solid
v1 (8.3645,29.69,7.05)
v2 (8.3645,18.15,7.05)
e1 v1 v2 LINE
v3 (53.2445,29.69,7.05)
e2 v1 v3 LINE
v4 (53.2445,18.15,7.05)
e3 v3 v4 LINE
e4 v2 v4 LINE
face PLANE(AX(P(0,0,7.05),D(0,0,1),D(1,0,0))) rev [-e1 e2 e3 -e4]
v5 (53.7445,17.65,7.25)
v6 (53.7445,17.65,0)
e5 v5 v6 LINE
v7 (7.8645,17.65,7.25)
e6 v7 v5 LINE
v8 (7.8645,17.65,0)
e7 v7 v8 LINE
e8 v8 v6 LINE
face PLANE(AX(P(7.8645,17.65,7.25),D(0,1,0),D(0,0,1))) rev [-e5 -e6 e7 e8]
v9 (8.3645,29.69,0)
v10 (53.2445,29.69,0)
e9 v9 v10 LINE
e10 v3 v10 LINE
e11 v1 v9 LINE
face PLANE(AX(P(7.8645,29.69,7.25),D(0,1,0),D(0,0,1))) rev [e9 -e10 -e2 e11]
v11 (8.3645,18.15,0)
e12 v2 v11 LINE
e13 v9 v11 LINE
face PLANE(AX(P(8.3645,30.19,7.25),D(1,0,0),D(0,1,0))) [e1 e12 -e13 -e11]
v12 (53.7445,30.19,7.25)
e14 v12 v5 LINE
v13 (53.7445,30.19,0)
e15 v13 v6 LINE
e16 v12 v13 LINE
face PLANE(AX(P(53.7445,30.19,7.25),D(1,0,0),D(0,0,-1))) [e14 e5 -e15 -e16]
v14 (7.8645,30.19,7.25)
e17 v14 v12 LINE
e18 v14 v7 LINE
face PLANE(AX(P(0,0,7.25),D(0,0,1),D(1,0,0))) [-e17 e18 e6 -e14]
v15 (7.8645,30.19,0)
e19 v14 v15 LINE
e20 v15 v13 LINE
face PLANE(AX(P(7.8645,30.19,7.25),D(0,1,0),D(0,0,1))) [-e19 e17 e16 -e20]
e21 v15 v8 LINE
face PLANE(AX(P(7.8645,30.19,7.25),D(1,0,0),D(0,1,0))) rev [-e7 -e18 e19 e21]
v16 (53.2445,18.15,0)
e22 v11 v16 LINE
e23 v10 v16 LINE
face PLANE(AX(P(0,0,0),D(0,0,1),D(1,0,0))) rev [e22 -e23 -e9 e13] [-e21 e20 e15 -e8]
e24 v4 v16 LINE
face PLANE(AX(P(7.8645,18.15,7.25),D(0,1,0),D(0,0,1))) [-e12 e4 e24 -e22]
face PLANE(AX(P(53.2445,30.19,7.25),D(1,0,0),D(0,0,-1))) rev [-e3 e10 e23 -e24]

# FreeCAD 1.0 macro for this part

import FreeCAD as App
import Part
import Sketcher
Q = App.Units.Quantity


def faces_at(feature, points):
    """Names of the faces that lie closest to the given points."""
    faces = feature.Shape.Faces
    near = lambda p: min(range(len(faces)), key=lambda i: faces[i].distToShape(Part.Vertex(*p))[0])
    return sorted({f"Face{near(p) + 1}" for p in points})

doc = App.newDocument("Part")
body = doc.addObject("PartDesign::Body", "Body")

# Sketch on XY plane
sketch1 = body.newObject("Sketcher::SketchObject", "Sketch")
sketch1.AttachmentSupport = (doc.getObject("XY_Plane"), [""])
sketch1.MapMode = "FlatFace"
sketch1.addGeometry([
    Part.LineSegment(App.Vector(8, 30, 0), App.Vector(8, 18, 0)),
    Part.LineSegment(App.Vector(8, 18, 0), App.Vector(54, 18, 0)),
    Part.LineSegment(App.Vector(54, 18, 0), App.Vector(54, 30, 0)),
    Part.LineSegment(App.Vector(54, 30, 0), App.Vector(8, 30, 0)),
], False)
sketch1.addConstraint([
    Sketcher.Constraint("Coincident", 0, 2, 1, 1),
    Sketcher.Constraint("Coincident", 1, 2, 2, 1),
    Sketcher.Constraint("Coincident", 2, 2, 3, 1),
    Sketcher.Constraint("Coincident", 3, 2, 0, 1),
    Sketcher.Constraint("Vertical", 0),
    Sketcher.Constraint("Horizontal", 1),
    Sketcher.Constraint("Vertical", 2),
    Sketcher.Constraint("Horizontal", 3),
    Sketcher.Constraint("DistanceX", 1, 1, 1, 2, Q("45.88 mm")),
    Sketcher.Constraint("DistanceY", 0, 2, 0, 1, Q("12.54 mm")),
    Sketcher.Constraint("DistanceY", -1, 1, 0, 2, Q("17.65 mm")),
    Sketcher.Constraint("DistanceX", -1, 1, 0, 2, Q("7.8645 mm")),
])
pad1 = body.newObject("PartDesign::Pad", "Pad")
pad1.Profile = sketch1
pad1.Length = 7.25
doc.recompute()

thickness = body.newObject("PartDesign::Thickness", "Thickness")
thickness.Base = (pad1, faces_at(pad1, [(30.805, 23.92, 0)]))
thickness.Value = 0.5
thickness.Reversed = True
thickness.Join = "Intersection"

# Sketch on XY plane
sketch2 = body.newObject("Sketcher::SketchObject", "Sketch001")
sketch2.AttachmentSupport = (doc.getObject("XY_Plane"), [""])
sketch2.MapMode = "FlatFace"
sketch2.AttachmentOffset = App.Placement(App.Vector(0, 0, 6.75), App.Rotation())
sketch2.addGeometry([
    Part.LineSegment(App.Vector(8, 30, 0), App.Vector(8, 18, 0)),
    Part.LineSegment(App.Vector(8, 18, 0), App.Vector(53, 18, 0)),
    Part.LineSegment(App.Vector(53, 18, 0), App.Vector(53, 30, 0)),
    Part.LineSegment(App.Vector(53, 30, 0), App.Vector(8, 30, 0)),
], False)
sketch2.addConstraint([
    Sketcher.Constraint("Coincident", 0, 2, 1, 1),
    Sketcher.Constraint("Coincident", 1, 2, 2, 1),
    Sketcher.Constraint("Coincident", 2, 2, 3, 1),
    Sketcher.Constraint("Coincident", 3, 2, 0, 1),
    Sketcher.Constraint("Vertical", 0),
    Sketcher.Constraint("Horizontal", 1),
    Sketcher.Constraint("Vertical", 2),
    Sketcher.Constraint("Horizontal", 3),
    Sketcher.Constraint("DistanceX", 1, 1, 1, 2, Q("44.88 mm")),
    Sketcher.Constraint("DistanceY", 0, 2, 0, 1, Q("11.54 mm")),
    Sketcher.Constraint("DistanceY", -1, 1, 0, 2, Q("18.15 mm")),
    Sketcher.Constraint("DistanceX", -1, 1, 0, 2, Q("8.3645 mm")),
])
pocket1 = body.newObject("PartDesign::Pocket", "Pocket")
pocket1.Profile = sketch2
pocket1.Length = 0.3
pocket1.Reversed = True

doc.recompute()
